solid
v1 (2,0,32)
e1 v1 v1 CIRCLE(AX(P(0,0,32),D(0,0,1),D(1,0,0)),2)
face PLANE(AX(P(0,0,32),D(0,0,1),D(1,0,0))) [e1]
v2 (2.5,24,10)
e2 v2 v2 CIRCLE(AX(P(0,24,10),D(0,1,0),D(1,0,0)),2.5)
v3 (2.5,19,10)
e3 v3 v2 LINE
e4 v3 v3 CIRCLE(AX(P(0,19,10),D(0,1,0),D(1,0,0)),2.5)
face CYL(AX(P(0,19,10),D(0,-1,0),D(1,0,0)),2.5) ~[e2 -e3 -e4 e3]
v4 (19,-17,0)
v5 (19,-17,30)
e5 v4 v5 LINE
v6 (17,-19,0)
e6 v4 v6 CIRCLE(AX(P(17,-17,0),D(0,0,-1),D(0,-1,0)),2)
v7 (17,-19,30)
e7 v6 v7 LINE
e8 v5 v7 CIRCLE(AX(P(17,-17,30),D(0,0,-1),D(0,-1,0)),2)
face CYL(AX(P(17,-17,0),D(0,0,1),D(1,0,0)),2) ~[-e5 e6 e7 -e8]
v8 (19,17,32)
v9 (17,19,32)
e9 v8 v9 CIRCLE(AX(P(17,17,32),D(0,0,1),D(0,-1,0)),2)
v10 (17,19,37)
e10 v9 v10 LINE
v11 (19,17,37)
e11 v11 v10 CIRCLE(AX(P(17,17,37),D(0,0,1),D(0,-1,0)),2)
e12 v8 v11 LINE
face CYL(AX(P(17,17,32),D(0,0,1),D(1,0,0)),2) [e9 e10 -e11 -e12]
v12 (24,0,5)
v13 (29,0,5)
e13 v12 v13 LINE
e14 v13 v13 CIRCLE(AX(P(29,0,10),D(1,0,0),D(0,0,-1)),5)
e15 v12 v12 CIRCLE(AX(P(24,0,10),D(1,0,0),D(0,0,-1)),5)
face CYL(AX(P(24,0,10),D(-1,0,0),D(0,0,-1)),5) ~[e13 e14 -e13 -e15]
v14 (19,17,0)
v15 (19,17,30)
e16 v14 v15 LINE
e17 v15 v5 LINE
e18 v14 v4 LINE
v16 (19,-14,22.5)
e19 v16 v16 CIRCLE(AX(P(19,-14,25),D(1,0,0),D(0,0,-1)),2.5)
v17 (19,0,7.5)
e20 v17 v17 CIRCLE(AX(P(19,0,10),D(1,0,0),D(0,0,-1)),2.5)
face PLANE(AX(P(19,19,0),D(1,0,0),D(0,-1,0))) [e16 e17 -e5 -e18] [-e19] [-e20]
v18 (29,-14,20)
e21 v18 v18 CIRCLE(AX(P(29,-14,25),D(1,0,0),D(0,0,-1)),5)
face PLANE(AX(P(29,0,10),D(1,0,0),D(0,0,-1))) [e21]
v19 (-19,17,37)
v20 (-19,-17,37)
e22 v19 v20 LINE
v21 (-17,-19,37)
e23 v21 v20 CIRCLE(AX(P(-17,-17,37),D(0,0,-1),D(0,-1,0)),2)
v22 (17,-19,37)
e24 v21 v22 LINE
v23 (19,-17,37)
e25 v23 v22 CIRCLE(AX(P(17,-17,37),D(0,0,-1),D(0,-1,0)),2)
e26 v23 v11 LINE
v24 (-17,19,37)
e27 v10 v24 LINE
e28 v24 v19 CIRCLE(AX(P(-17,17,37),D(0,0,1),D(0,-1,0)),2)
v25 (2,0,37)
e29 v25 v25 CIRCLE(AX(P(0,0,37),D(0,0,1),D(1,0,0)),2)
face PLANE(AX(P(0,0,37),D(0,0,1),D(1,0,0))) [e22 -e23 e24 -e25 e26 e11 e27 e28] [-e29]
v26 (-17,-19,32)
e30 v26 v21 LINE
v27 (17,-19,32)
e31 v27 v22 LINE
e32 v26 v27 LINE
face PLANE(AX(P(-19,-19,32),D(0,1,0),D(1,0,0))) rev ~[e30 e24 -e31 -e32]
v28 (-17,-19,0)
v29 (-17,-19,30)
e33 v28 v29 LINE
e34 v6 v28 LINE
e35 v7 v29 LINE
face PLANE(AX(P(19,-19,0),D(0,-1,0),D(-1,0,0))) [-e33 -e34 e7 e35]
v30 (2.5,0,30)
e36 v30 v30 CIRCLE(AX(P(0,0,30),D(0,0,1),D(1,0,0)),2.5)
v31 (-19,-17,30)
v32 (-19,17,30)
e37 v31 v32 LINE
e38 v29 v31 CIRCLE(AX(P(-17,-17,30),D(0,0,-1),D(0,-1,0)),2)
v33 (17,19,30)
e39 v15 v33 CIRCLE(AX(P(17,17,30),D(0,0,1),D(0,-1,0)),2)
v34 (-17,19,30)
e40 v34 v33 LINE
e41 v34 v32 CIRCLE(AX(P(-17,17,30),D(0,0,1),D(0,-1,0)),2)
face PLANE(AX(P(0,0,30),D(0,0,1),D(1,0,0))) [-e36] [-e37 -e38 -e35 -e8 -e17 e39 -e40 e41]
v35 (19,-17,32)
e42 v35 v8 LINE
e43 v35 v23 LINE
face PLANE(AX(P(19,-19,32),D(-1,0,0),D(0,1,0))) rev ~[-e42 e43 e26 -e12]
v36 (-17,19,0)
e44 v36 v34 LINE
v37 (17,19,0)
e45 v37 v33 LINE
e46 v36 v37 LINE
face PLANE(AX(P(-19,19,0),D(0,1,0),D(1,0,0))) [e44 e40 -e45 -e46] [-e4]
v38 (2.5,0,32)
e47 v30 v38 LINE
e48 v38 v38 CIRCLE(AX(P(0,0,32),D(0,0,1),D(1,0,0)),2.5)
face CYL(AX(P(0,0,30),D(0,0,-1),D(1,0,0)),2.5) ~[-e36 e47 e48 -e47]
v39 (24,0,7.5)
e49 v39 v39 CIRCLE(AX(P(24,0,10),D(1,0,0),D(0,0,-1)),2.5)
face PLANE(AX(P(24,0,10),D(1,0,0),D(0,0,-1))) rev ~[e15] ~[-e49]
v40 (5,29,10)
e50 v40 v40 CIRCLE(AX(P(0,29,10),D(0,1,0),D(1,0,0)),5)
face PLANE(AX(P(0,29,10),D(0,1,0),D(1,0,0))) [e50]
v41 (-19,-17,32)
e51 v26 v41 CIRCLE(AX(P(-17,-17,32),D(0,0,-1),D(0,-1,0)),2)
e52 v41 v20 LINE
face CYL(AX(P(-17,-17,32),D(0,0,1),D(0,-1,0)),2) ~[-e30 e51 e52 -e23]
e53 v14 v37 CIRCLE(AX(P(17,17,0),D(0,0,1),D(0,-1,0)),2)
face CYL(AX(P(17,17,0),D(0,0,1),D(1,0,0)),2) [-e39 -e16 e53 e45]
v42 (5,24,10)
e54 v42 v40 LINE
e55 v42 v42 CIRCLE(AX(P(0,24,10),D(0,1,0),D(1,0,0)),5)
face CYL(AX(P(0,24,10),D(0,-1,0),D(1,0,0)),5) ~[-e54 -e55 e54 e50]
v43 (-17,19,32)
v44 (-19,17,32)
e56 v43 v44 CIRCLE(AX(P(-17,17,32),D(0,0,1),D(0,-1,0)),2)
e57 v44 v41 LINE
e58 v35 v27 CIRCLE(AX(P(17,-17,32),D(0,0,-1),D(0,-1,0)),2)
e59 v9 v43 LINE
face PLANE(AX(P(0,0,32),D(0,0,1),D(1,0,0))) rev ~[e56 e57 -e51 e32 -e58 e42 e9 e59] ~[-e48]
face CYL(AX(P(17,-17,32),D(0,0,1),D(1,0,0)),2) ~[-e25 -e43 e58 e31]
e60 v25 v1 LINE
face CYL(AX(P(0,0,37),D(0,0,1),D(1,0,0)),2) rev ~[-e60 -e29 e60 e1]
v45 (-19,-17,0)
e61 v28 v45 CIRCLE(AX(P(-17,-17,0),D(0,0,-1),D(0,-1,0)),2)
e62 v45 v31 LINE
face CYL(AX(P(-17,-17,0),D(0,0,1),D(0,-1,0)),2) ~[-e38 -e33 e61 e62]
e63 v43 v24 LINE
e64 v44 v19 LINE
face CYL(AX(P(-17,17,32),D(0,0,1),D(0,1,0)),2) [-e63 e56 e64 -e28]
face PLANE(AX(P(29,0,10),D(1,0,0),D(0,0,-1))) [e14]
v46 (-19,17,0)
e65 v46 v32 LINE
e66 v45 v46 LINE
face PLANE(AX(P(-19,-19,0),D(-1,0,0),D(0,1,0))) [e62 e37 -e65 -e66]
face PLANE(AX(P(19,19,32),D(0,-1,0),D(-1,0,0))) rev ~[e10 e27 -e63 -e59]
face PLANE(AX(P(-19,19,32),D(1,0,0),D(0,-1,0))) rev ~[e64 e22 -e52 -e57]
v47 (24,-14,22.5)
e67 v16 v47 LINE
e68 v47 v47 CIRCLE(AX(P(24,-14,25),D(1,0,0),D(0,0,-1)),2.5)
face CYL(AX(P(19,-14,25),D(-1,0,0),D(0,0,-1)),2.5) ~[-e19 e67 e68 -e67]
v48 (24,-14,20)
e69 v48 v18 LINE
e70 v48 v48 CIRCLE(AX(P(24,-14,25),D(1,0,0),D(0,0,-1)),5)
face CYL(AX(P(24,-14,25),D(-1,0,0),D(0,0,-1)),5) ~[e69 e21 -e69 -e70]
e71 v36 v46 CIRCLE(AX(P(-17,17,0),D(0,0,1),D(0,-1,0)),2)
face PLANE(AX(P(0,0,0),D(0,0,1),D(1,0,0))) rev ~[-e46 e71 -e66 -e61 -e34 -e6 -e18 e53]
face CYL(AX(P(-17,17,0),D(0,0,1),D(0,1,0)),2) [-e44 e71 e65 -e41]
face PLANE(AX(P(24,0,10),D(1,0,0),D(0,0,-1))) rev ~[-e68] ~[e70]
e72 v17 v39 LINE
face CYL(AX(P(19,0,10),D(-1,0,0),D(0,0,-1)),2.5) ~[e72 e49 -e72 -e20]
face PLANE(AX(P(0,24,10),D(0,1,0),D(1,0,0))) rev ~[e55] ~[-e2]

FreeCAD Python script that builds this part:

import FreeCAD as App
import Part
import Sketcher


def edges_at(feature, points):
    """Names of the edges that pass closest to the given points."""
    edges = feature.Shape.Edges
    near = lambda p: min(range(len(edges)), key=lambda i: edges[i].distToShape(Part.Vertex(*p))[0])
    return sorted({f"Edge{near(p) + 1}" for p in points})

doc = App.newDocument("Part")
body = doc.addObject("PartDesign::Body", "Body")

# Sketch on XY plane
sketch1 = body.newObject("Sketcher::SketchObject", "Sketch")
sketch1.AttachmentSupport = (doc.getObject("XY_Plane"), [""])
sketch1.MapMode = "FlatFace"
sketch1.addGeometry([
    Part.LineSegment(App.Vector(-19, -19, 0), App.Vector(19, -19, 0)),
    Part.LineSegment(App.Vector(19, -19, 0), App.Vector(19, 19, 0)),
    Part.LineSegment(App.Vector(19, 19, 0), App.Vector(-19, 19, 0)),
    Part.LineSegment(App.Vector(-19, 19, 0), App.Vector(-19, -19, 0)),
], False)
sketch1.addConstraint([
    Sketcher.Constraint("Coincident", 0, 2, 1, 1),
    Sketcher.Constraint("Coincident", 1, 2, 2, 1),
    Sketcher.Constraint("Coincident", 2, 2, 3, 1),
    Sketcher.Constraint("Coincident", 3, 2, 0, 1),
    Sketcher.Constraint("Horizontal", 0),
    Sketcher.Constraint("Vertical", 1),
    Sketcher.Constraint("Horizontal", 2),
    Sketcher.Constraint("Vertical", 3),
    Sketcher.Constraint("Symmetric", 0, 2, 2, 2, -1, 1),
    Sketcher.Constraint("Equal", 2, 1),
    Sketcher.Constraint("DistanceX", 0, 1, 0, 2, 38.0),
])
pad1 = body.newObject("PartDesign::Pad", "Pad")
pad1.Profile = sketch1
pad1.Length = 30

# Sketch on XY plane
sketch2 = body.newObject("Sketcher::SketchObject", "Sketch001")
sketch2.AttachmentSupport = (doc.getObject("XY_Plane"), [""])
sketch2.MapMode = "FlatFace"
sketch2.AttachmentOffset = App.Placement(App.Vector(0, 0, 30), App.Rotation())
sketch2.addGeometry(Part.Circle(App.Vector(0, 0, 0), App.Vector(0, 0, 1), 2.5), False)
sketch2.addConstraint([
    Sketcher.Constraint("Coincident", 0, 3, -1, 1),
    Sketcher.Constraint("Diameter", 0, 5.0),
])
pad2 = body.newObject("PartDesign::Pad", "Pad001")
pad2.Profile = sketch2
pad2.Length = 2

# Sketch on XY plane
sketch3 = body.newObject("Sketcher::SketchObject", "Sketch002")
sketch3.AttachmentSupport = (doc.getObject("XY_Plane"), [""])
sketch3.MapMode = "FlatFace"
sketch3.AttachmentOffset = App.Placement(App.Vector(0, 0, 32), App.Rotation())
sketch3.addGeometry([
    Part.LineSegment(App.Vector(19, -19, 0), App.Vector(19, 19, 0)),
    Part.LineSegment(App.Vector(19, 19, 0), App.Vector(-19, 19, 0)),
    Part.LineSegment(App.Vector(-19, 19, 0), App.Vector(-19, -19, 0)),
    Part.LineSegment(App.Vector(-19, -19, 0), App.Vector(19, -19, 0)),
], False)
sketch3.addConstraint([
    Sketcher.Constraint("Coincident", 0, 2, 1, 1),
    Sketcher.Constraint("Coincident", 1, 2, 2, 1),
    Sketcher.Constraint("Coincident", 2, 2, 3, 1),
    Sketcher.Constraint("Coincident", 3, 2, 0, 1),
    Sketcher.Constraint("Vertical", 0),
    Sketcher.Constraint("Horizontal", 1),
    Sketcher.Constraint("Vertical", 2),
    Sketcher.Constraint("Horizontal", 3),
    Sketcher.Constraint("Symmetric", 0, 2, 2, 2, -1, 1),
    Sketcher.Constraint("Equal", 3, 0),
    Sketcher.Constraint("DistanceX", 1, 2, 1, 1, 38.0),
])
pad3 = body.newObject("PartDesign::Pad", "Pad002")
pad3.Profile = sketch3
pad3.Length = 5

# Sketch on XZ plane
sketch4 = body.newObject("Sketcher::SketchObject", "Sketch003")
sketch4.AttachmentSupport = (doc.getObject("XZ_Plane"), [""])
sketch4.MapMode = "FlatFace"
sketch4.AttachmentOffset = App.Placement(App.Vector(0, 0, -19), App.Rotation())
sketch4.addGeometry(Part.Circle(App.Vector(0, 10, 0), App.Vector(0, 0, 1), 2.5), False)
sketch4.addConstraint([
    Sketcher.Constraint("PointOnObject", 0, 3, -2),
    Sketcher.Constraint("Diameter", 0, 5.0),
    Sketcher.Constraint("DistanceY", -1, 1, 0, 3, 10.0),
])
pad4 = body.newObject("PartDesign::Pad", "Pad003")
pad4.Profile = sketch4
pad4.Length = 5
pad4.Reversed = True

# Sketch on XZ plane
sketch5 = body.newObject("Sketcher::SketchObject", "Sketch004")
sketch5.AttachmentSupport = (doc.getObject("XZ_Plane"), [""])
sketch5.MapMode = "FlatFace"
sketch5.AttachmentOffset = App.Placement(App.Vector(0, 0, -24), App.Rotation())
sketch5.addGeometry(Part.Circle(App.Vector(0, 10, 0), App.Vector(0, 0, 1), 5), False)
sketch5.addConstraint([
    Sketcher.Constraint("PointOnObject", 0, 3, -2),
    Sketcher.Constraint("Diameter", 0, 10.0),
    Sketcher.Constraint("DistanceY", -1, 1, 0, 3, 10.0),
])
pad5 = body.newObject("PartDesign::Pad", "Pad004")
pad5.Profile = sketch5
pad5.Length = 5
pad5.Reversed = True

# Sketch on YZ plane
sketch6 = body.newObject("Sketcher::SketchObject", "Sketch005")
sketch6.AttachmentSupport = (doc.getObject("YZ_Plane"), [""])
sketch6.MapMode = "FlatFace"
sketch6.AttachmentOffset = App.Placement(App.Vector(0, 0, 19), App.Rotation())
sketch6.addGeometry([
    Part.Circle(App.Vector(0, 10, 0), App.Vector(0, 0, 1), 2.5),
    Part.Circle(App.Vector(-14, 25, 0), App.Vector(0, 0, 1), 2.5),
], False)
sketch6.addConstraint([
    Sketcher.Constraint("Equal", 0, 1),
    Sketcher.Constraint("PointOnObject", 0, 3, -2),
    Sketcher.Constraint("Diameter", 0, 5.0),
    Sketcher.Constraint("DistanceY", -1, 1, 0, 3, 10.0),
    Sketcher.Constraint("DistanceX", 1, 3, -1, 1, 14.0),
    Sketcher.Constraint("DistanceY", -1, 1, 1, 3, 25.0),
])
pad6 = body.newObject("PartDesign::Pad", "Pad005")
pad6.Profile = sketch6
pad6.Length = 5

# Sketch on YZ plane
sketch7 = body.newObject("Sketcher::SketchObject", "Sketch006")
sketch7.AttachmentSupport = (doc.getObject("YZ_Plane"), [""])
sketch7.MapMode = "FlatFace"
sketch7.AttachmentOffset = App.Placement(App.Vector(0, 0, 24), App.Rotation())
sketch7.addGeometry([
    Part.Circle(App.Vector(0, 10, 0), App.Vector(0, 0, 1), 5),
    Part.Circle(App.Vector(-14, 25, 0), App.Vector(0, 0, 1), 5),
], False)
sketch7.addConstraint([
    Sketcher.Constraint("Equal", 0, 1),
    Sketcher.Constraint("PointOnObject", 0, 3, -2),
    Sketcher.Constraint("Diameter", 0, 10.0),
    Sketcher.Constraint("DistanceY", -1, 1, 0, 3, 10.0),
    Sketcher.Constraint("DistanceX", 1, 3, -1, 1, 14.0),
    Sketcher.Constraint("DistanceY", -1, 1, 1, 3, 25.0),
])
pad7 = body.newObject("PartDesign::Pad", "Pad006")
pad7.Profile = sketch7
pad7.Length = 5
doc.recompute()

fillet = body.newObject("PartDesign::Fillet", "Fillet")
fillet.Base = (pad7, edges_at(pad7, [
    (19, 19, 15),
    (19, 19, 34.5),
    (19, -19, 15),
    (-19, 19, 15),
    (19, -19, 34.5),
    (-19, -19, 15),
    (-19, -19, 34.5),
    (-19, 19, 34.5),
]))
fillet.Radius = 2

# Sketch on XY plane
sketch8 = body.newObject("Sketcher::SketchObject", "Sketch007")
sketch8.AttachmentSupport = (doc.getObject("XY_Plane"), [""])
sketch8.MapMode = "FlatFace"
sketch8.AttachmentOffset = App.Placement(App.Vector(0, 0, 37), App.Rotation())
sketch8.addGeometry(Part.Circle(App.Vector(0, 0, 0), App.Vector(0, 0, 1), 2), False)
sketch8.addConstraint([
    Sketcher.Constraint("Coincident", 0, 3, -1, 1),
    Sketcher.Constraint("Diameter", 0, 4.0),
])
pocket1 = body.newObject("PartDesign::Pocket", "Pocket")
pocket1.Profile = sketch8
pocket1.Length = 5

doc.recompute()
